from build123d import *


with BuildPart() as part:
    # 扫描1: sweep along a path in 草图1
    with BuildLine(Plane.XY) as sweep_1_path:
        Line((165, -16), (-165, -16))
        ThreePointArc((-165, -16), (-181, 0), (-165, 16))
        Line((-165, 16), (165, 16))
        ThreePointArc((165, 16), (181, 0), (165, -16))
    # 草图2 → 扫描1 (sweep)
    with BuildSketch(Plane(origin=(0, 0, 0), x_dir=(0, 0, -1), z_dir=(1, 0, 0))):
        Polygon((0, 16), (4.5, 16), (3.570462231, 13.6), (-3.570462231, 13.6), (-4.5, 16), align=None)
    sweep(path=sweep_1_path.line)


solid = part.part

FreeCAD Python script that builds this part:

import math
import FreeCAD as App
import Part
import Sketcher

V = App.Vector

doc = App.newDocument("Part")
body = doc.addObject("PartDesign::Body", "Body")

# Sketch on YZ plane
sketch1 = body.newObject("Sketcher::SketchObject", "Sketch")
sketch1.AttachmentSupport = (doc.getObject("YZ_Plane"), [""])
sketch1.MapMode = "FlatFace"
sketch1.addGeometry(Part.LineSegment(V(16, -4.5, 0), V(16, 4.5, 0)), False)
sketch1.addGeometry(Part.LineSegment(V(16, 4.5, 0), V(13.6, 3.6, 0)), False)
sketch1.addGeometry(Part.LineSegment(V(13.6, 3.6, 0), V(13.6, -3.6, 0)), False)
sketch1.addGeometry(Part.LineSegment(V(13.6, -3.6, 0), V(16, -4.5, 0)), False)
sketch1.addConstraint(Sketcher.Constraint("Coincident", 0, 2, 1, 1))
sketch1.addConstraint(Sketcher.Constraint("Coincident", 1, 2, 2, 1))
sketch1.addConstraint(Sketcher.Constraint("Coincident", 2, 2, 3, 1))
sketch1.addConstraint(Sketcher.Constraint("Coincident", 3, 2, 0, 1))
sketch1.addConstraint(Sketcher.Constraint("Vertical", 0))
sketch1.addConstraint(Sketcher.Constraint("Vertical", 2))
sketch1.addConstraint(Sketcher.Constraint("Equal", 1, 3))
sketch1.addConstraint(Sketcher.Constraint("DistanceY", 0, 1, 0, 2, 9.0))
sketch1.addConstraint(Sketcher.Constraint("DistanceX", -1, 1, 0, 2, 16.0))
sketch1.addConstraint(Sketcher.Constraint("DistanceY", -1, 1, 0, 2, 4.5))
sketch1.addConstraint(Sketcher.Constraint("DistanceX", -1, 1, 1, 2, 13.6))
sketch1.addConstraint(Sketcher.Constraint("Distance", 1, 2.573721))

# Sketch on XY plane
sketch2 = body.newObject("Sketcher::SketchObject", "Sketch001")
sketch2.AttachmentSupport = (doc.getObject("XY_Plane"), [""])
sketch2.MapMode = "FlatFace"
sketch2.addGeometry(Part.LineSegment(V(165, -16, 0), V(-165, -16, 0)), False)
sketch2.addGeometry(Part.ArcOfCircle(Part.Circle(V(-165, 0, 0), V(0, 0, 1), 16), math.radians(90), math.radians(270)), False)
sketch2.addGeometry(Part.LineSegment(V(-165, 16, 0), V(165, 16, 0)), False)
sketch2.addGeometry(Part.ArcOfCircle(Part.Circle(V(165, 0, 0), V(0, 0, 1), 16), math.radians(-90), math.radians(90)), False)
sketch2.addConstraint(Sketcher.Constraint("Tangent", 0, 2, 1, 2))
sketch2.addConstraint(Sketcher.Constraint("Tangent", 1, 1, 2, 1))
sketch2.addConstraint(Sketcher.Constraint("Tangent", 2, 2, 3, 2))
sketch2.addConstraint(Sketcher.Constraint("Tangent", 3, 1, 0, 1))
sketch2.addConstraint(Sketcher.Constraint("Horizontal", 0))
sketch2.addConstraint(Sketcher.Constraint("Horizontal", 2))
sketch2.addConstraint(Sketcher.Constraint("Symmetric", 1, 3, 3, 3, -1, 1))
sketch2.addConstraint(Sketcher.Constraint("Radius", 1, 16.0))
sketch2.addConstraint(Sketcher.Constraint("DistanceX", 0, 2, 0, 1, 330.0))
doc.recompute()

additivepipe = body.newObject("PartDesign::AdditivePipe", "AdditivePipe")
additivepipe.Profile = sketch1
additivepipe.Spine = (sketch2, ["Edge1", "Edge2", "Edge3", "Edge4"])

doc.recompute()
